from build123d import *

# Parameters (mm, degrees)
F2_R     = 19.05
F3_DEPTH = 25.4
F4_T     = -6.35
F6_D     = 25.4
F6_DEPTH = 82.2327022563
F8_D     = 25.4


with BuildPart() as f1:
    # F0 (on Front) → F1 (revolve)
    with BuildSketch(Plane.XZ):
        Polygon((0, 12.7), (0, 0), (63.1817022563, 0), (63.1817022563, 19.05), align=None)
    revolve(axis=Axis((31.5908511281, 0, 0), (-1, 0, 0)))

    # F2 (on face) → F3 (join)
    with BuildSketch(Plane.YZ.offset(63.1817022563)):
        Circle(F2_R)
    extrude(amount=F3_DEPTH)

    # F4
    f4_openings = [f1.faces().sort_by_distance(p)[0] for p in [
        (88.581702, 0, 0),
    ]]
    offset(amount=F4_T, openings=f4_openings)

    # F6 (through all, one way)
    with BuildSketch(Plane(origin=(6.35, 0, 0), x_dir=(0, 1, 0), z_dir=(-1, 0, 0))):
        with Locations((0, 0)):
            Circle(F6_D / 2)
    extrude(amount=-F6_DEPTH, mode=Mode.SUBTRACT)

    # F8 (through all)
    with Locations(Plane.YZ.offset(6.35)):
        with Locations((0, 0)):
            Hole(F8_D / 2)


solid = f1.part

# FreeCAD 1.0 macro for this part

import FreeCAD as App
import Part
import Sketcher

V = App.Vector
Q = App.Units.Quantity


def faces_at(feature, points):
    """Names of the faces that lie closest to the given points."""
    faces = feature.Shape.Faces
    near = lambda p: min(range(len(faces)), key=lambda i: faces[i].distToShape(Part.Vertex(*p))[0])
    return sorted({f"Face{near(p) + 1}" for p in points})

doc = App.newDocument("Part")
params = doc.addObject("Spreadsheet::Sheet", "Params")
for row, (alias, value) in enumerate([
    ("sketch1_height", "0.5 in"),
    ("sketch1_length", "2.5 in"),
    ("sketch1_height2", "0.75 in"),
    ("revolution_angle", "360 deg"),
    ("sketch2_diameter", "1.5 in"),
    ("pad1_length", "1 in"),
    ("thickness_wall", "0.25 in"),
    ("sketch3_diameter", "1 in"),
    ("sketch4_diameter", "1 in"),
    ("hole_diameter", "1 in"),
], start=1):
    params.set(f"A{row}", alias)
    params.set(f"B{row}", "=" + value)
    params.setAlias(f"B{row}", alias)

body = doc.addObject("PartDesign::Body", "Body")

sketch1 = doc.addObject("Sketcher::SketchObject", "Sketch")
body.addObject(sketch1)
sketch1.AttachmentSupport = (doc.XZ_Plane, [""])
sketch1.MapMode = "FlatFace"
sketch1.addGeometry(Part.LineSegment(V(0, 13, 0), V(0, 0, 0)), False)
sketch1.addGeometry(Part.LineSegment(V(0, 0, 0), V(63, 0, 0)), False)
sketch1.addGeometry(Part.LineSegment(V(63, 0, 0), V(63, 19, 0)), False)
sketch1.addGeometry(Part.LineSegment(V(63, 19, 0), V(0, 13, 0)), False)
sketch1.addConstraint(Sketcher.Constraint("Coincident", 0, 2, 1, 1))
sketch1.addConstraint(Sketcher.Constraint("Coincident", 1, 2, 2, 1))
sketch1.addConstraint(Sketcher.Constraint("Coincident", 2, 2, 3, 1))
sketch1.addConstraint(Sketcher.Constraint("Coincident", 3, 2, 0, 1))
sketch1.addConstraint(Sketcher.Constraint("Vertical", 0))
sketch1.addConstraint(Sketcher.Constraint("Horizontal", 1))
sketch1.addConstraint(Sketcher.Constraint("Vertical", 2))
sketch1.addConstraint(Sketcher.Constraint("Coincident", 0, 2, -1, 1))
sketch1.addConstraint(Sketcher.Constraint("DistanceY", 0, 2, 0, 1, Q("0.5 in")))
sketch1.addConstraint(Sketcher.Constraint("Distance", 3, Q("2.5 in")))
sketch1.addConstraint(Sketcher.Constraint("DistanceY", 2, 1, 2, 2, Q("0.75 in")))
sketch1.setExpression("Constraints[8]", "Params.sketch1_height")
sketch1.setExpression("Constraints[9]", "Params.sketch1_length")
sketch1.setExpression("Constraints[10]", "Params.sketch1_height2")
revolution = doc.addObject("PartDesign::Revolution", "Revolution")
body.addObject(revolution)
revolution.Profile = sketch1
revolution.ReferenceAxis = (sketch1, ["H_Axis"])
revolution.setExpression("Angle", "Params.revolution_angle")

sketch2 = doc.addObject("Sketcher::SketchObject", "Sketch001")
body.addObject(sketch2)
sketch2.AttachmentSupport = (doc.YZ_Plane, [""])
sketch2.MapMode = "FlatFace"
sketch2.AttachmentOffset = App.Placement(V(0, 0, 63.181702), App.Rotation())
sketch2.addGeometry(Part.Circle(V(0, 0, 0), V(0, 0, 1), 19), False)
sketch2.addConstraint(Sketcher.Constraint("Coincident", 0, 3, -1, 1))
sketch2.addConstraint(Sketcher.Constraint("Diameter", 0, Q("1.5 in")))
sketch2.setExpression("Constraints[1]", "Params.sketch2_diameter")
pad1 = doc.addObject("PartDesign::Pad", "Pad")
body.addObject(pad1)
pad1.Profile = sketch2
pad1.setExpression("Length", "Params.pad1_length")
doc.recompute()

thickness = doc.addObject("PartDesign::Thickness", "Thickness")
body.addObject(thickness)
thickness.Base = (pad1, faces_at(pad1, [(88.582, 0, 0)]))
thickness.setExpression("Value", "Params.thickness_wall")
thickness.Reversed = True
thickness.Join = "Arc"

sketch3 = doc.addObject("Sketcher::SketchObject", "Sketch002")
body.addObject(sketch3)
sketch3.AttachmentSupport = (doc.YZ_Plane, [""])
sketch3.MapMode = "FlatFace"
sketch3.AttachmentOffset = App.Placement(V(0, 0, 0.25 * 25.4), App.Rotation())
sketch3.addGeometry(Part.Circle(V(0, 0, 0), V(0, 0, 1), 13), False)
sketch3.addConstraint(Sketcher.Constraint("Coincident", 0, 3, -1, 1))
sketch3.addConstraint(Sketcher.Constraint("Diameter", 0, Q("1 in")))
sketch3.setExpression("Constraints[1]", "Params.sketch3_diameter")
pocket1 = doc.addObject("PartDesign::Pocket", "Pocket")
body.addObject(pocket1)
pocket1.Profile = sketch3
pocket1.Type = "ThroughAll"
pocket1.Reversed = True

sketch4 = doc.addObject("Sketcher::SketchObject", "Sketch003")
body.addObject(sketch4)
sketch4.AttachmentSupport = (doc.YZ_Plane, [""])
sketch4.MapMode = "FlatFace"
sketch4.AttachmentOffset = App.Placement(V(0, 0, 0.25 * 25.4), App.Rotation())
sketch4.addGeometry(Part.Circle(V(0, 0, 0), V(0, 0, 1), 13), False)
sketch4.addConstraint(Sketcher.Constraint("Coincident", 0, 3, -1, 1))
sketch4.addConstraint(Sketcher.Constraint("Diameter", 0, Q("1 in")))
sketch4.setExpression("Constraints[1]", "Params.sketch4_diameter")
doc.recompute()
hole = doc.addObject("PartDesign::Hole", "Hole")
body.addObject(hole)
hole.Profile = sketch4
hole.ThreadType = "None"
hole.setExpression("Diameter", "Params.hole_diameter")
hole.DepthType = "ThroughAll"

doc.recompute()
